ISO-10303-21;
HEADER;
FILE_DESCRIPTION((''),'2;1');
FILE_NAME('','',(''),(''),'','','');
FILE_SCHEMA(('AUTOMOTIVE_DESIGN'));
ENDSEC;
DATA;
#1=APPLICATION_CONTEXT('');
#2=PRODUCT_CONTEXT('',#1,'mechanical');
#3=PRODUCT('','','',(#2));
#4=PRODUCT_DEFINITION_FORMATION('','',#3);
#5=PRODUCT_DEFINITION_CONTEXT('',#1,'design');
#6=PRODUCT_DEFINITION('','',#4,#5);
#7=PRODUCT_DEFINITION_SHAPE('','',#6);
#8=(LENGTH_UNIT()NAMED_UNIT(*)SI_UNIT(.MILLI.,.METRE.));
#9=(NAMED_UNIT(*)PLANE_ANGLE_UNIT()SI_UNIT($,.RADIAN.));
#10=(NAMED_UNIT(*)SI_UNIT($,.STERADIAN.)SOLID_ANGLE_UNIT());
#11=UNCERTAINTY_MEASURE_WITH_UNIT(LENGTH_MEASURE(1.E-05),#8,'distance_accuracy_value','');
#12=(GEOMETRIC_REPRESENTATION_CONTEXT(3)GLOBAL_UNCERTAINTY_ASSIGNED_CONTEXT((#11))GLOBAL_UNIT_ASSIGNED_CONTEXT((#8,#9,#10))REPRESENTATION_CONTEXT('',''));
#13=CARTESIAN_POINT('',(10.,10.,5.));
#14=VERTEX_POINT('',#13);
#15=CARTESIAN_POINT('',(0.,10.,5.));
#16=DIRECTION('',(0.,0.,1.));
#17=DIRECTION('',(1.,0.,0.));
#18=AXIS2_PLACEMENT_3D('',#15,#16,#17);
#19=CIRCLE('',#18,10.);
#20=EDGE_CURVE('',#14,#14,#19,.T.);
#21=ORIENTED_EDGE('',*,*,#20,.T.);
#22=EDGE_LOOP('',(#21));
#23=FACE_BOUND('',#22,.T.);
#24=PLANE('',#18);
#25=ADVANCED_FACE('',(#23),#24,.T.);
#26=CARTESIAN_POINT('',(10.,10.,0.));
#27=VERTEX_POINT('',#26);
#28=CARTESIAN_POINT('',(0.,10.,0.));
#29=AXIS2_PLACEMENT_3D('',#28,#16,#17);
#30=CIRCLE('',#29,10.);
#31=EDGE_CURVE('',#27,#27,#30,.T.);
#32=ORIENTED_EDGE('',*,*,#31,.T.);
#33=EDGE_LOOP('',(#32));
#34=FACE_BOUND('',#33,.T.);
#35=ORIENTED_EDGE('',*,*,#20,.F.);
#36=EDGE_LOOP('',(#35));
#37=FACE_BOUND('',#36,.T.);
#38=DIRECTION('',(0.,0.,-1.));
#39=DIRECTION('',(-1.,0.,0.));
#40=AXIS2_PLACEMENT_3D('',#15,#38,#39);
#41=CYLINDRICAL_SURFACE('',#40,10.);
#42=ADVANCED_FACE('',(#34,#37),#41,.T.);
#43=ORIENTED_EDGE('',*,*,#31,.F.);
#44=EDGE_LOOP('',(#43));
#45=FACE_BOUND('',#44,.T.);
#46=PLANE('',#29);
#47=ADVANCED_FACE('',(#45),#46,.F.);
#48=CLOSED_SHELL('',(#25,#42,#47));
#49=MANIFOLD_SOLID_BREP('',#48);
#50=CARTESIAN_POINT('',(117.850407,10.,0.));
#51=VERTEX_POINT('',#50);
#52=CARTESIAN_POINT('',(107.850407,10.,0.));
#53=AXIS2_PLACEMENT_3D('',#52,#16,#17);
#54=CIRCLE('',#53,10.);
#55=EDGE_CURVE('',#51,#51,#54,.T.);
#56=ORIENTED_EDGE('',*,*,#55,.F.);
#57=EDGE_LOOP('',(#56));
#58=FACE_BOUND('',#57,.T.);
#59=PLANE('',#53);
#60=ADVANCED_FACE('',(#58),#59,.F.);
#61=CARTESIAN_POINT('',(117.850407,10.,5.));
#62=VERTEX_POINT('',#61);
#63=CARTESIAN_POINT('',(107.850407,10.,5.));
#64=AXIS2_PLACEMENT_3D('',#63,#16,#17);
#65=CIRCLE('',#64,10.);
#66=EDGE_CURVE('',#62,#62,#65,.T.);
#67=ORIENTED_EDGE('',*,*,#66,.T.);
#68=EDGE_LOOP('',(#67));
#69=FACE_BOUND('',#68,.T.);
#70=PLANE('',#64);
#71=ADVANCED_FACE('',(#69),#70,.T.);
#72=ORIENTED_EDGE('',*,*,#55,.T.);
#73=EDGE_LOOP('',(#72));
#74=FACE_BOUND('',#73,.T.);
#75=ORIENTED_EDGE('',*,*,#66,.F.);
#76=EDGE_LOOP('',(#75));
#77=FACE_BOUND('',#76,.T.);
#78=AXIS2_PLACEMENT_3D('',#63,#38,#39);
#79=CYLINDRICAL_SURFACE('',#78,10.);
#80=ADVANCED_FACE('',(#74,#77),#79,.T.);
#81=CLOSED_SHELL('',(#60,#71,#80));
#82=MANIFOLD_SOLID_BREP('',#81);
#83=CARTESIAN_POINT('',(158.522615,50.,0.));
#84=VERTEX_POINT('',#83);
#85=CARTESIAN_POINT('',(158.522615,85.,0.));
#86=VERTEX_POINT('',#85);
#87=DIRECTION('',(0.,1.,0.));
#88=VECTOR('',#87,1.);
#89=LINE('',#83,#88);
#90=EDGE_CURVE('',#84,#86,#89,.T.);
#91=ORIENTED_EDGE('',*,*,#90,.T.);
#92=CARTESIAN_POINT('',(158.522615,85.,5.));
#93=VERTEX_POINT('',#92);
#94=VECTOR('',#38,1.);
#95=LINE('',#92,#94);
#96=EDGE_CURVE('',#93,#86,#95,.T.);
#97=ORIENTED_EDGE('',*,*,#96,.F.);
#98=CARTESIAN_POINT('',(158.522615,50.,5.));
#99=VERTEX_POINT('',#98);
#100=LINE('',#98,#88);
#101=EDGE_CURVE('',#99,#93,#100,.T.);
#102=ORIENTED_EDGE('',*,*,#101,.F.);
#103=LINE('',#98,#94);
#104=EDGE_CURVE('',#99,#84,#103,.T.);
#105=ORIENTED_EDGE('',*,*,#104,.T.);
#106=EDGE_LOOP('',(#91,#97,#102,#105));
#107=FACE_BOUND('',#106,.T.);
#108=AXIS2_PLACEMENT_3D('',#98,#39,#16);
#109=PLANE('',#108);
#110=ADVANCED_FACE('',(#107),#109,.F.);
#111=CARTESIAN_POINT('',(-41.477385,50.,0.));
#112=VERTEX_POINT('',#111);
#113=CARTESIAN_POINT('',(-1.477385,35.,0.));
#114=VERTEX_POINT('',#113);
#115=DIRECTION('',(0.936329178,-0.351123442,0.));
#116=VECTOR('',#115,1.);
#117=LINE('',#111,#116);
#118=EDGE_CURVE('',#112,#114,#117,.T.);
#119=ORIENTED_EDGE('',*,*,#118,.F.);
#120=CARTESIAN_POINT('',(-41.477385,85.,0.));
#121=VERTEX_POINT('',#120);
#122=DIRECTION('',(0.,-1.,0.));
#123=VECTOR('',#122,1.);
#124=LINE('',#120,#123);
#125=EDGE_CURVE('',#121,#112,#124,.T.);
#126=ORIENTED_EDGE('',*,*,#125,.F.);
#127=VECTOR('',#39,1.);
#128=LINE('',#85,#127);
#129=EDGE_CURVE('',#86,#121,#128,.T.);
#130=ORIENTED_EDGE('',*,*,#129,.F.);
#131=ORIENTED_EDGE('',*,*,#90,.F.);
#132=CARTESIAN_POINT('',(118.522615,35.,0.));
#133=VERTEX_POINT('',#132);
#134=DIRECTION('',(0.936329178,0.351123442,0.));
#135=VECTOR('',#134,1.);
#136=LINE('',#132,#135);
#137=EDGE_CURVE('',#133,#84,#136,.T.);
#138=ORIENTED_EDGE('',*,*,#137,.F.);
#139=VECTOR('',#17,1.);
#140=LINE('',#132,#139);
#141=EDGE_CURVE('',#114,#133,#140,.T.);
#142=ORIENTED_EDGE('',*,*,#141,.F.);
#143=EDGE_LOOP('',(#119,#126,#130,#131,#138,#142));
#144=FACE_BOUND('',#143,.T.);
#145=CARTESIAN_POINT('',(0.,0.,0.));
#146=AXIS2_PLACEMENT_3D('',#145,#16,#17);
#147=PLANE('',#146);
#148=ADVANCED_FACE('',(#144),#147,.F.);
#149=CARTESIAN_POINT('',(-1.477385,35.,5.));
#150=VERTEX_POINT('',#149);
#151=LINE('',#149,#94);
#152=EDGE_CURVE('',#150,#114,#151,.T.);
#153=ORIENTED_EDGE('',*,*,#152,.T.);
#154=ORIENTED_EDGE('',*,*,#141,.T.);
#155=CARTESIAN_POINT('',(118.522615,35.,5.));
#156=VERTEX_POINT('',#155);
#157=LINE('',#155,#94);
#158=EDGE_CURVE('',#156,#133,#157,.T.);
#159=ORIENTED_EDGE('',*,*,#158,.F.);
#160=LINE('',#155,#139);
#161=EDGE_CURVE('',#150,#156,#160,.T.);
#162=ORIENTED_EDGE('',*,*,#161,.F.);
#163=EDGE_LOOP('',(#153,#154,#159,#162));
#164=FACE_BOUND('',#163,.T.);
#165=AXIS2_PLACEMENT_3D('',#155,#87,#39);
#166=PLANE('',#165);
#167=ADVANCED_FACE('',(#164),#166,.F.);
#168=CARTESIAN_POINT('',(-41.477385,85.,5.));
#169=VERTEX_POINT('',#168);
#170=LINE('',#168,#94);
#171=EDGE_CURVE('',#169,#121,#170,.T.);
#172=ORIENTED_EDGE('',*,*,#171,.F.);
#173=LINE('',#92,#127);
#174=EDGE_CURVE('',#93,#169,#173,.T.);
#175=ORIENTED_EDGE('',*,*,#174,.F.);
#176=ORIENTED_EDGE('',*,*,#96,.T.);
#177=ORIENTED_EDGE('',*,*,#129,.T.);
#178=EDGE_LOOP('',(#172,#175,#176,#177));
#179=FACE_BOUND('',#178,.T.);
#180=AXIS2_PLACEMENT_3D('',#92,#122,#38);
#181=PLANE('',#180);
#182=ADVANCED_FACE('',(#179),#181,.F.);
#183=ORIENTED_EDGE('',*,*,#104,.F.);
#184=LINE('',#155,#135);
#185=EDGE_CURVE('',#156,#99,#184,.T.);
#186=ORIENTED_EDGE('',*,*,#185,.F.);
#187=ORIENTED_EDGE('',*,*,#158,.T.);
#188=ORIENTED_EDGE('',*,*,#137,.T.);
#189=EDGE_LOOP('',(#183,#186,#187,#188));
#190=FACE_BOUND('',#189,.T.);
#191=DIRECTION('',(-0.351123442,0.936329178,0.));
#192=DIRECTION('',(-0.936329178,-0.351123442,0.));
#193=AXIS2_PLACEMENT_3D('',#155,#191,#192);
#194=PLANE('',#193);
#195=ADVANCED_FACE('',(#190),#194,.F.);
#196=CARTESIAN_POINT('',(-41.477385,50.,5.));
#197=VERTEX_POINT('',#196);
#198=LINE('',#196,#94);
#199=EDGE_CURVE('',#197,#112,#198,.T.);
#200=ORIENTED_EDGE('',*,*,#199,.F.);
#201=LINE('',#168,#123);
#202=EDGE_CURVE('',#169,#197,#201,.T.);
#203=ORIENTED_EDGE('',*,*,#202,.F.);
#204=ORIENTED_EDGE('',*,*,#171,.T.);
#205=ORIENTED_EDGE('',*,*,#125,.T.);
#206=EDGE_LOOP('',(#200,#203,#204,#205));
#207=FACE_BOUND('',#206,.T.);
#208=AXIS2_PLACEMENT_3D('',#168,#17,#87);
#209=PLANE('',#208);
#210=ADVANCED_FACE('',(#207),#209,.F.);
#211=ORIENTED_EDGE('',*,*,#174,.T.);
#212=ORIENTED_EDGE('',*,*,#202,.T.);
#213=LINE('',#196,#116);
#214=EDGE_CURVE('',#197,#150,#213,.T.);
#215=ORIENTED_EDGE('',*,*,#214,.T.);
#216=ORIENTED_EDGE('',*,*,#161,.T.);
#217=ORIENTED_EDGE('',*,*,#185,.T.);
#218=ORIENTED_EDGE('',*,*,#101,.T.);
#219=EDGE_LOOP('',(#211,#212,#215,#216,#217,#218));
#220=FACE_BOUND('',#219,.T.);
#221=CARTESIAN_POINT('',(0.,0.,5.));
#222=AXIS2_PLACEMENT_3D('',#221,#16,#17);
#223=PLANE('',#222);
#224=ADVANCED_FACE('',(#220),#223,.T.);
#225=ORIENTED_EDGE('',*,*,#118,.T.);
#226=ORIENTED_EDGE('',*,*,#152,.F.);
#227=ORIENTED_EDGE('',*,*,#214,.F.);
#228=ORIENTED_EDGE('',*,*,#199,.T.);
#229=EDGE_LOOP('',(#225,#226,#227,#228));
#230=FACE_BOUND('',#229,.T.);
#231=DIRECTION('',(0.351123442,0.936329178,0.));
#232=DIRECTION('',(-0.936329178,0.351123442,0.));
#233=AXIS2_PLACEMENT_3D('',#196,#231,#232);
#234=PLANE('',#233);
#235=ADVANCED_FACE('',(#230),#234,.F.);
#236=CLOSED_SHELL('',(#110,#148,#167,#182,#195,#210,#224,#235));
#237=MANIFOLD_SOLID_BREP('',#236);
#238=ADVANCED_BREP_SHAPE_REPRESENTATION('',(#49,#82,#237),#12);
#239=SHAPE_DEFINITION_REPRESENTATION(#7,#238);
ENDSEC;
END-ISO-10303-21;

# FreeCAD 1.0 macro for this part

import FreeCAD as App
import Part
import Sketcher
Q = App.Units.Quantity


def add_polygon(sketch, points):
    """Adds a closed chain of lines whose ends are joined by coincident constraints."""
    first, n = sketch.GeometryCount, len(points)
    for a, b in zip(points, points[1:] + points[:1]):
        sketch.addGeometry(Part.LineSegment(App.Vector(*a, 0), App.Vector(*b, 0)), False)
    for i in range(n):
        sketch.addConstraint(Sketcher.Constraint("Coincident", first + i, 2, first + (i + 1) % n, 1))

doc = App.newDocument("Part")
params = doc.addObject("Spreadsheet::Sheet", "Params")
for row, (alias, value) in enumerate([
    ("sketch1_diameter", "20 mm"),
    ("pad1_length", "5 mm"),
    ("sketch2_diameter", "20 mm"),
    ("pad2_length", "5 mm"),
    ("sketch3_width", "200 mm"),
    ("sketch3_width2", "120 mm"),
    ("sketch3_height", "35 mm"),
    ("pad3_length", "5 mm"),
], start=1):
    params.set(f"A{row}", alias)
    params.set(f"B{row}", "=" + value)
    params.setAlias(f"B{row}", alias)

body = doc.addObject("PartDesign::Body", "Body")

# Sketch on XY plane
sketch1 = doc.addObject("Sketcher::SketchObject", "Sketch")
body.addObject(sketch1)
sketch1.AttachmentSupport = (doc.XY_Plane, [""])
sketch1.MapMode = "FlatFace"
sketch1.addGeometry(Part.Circle(App.Vector(0, 10, 0), App.Vector(0, 0, 1), 10), False)
sketch1.addConstraint(Sketcher.Constraint("PointOnObject", 0, 3, -2))
sketch1.addConstraint(Sketcher.Constraint("Diameter", 0, Q("20 mm")))
sketch1.addConstraint(Sketcher.Constraint("DistanceY", -1, 1, 0, 3, Q("10 mm")))
sketch1.setExpression("Constraints[1]", "Params.sketch1_diameter")
pad1 = doc.addObject("PartDesign::Pad", "Pad")
body.addObject(pad1)
pad1.Profile = sketch1
pad1.setExpression("Length", "Params.pad1_length")
body2 = doc.addObject("PartDesign::Body", "Body001")

# Sketch on XY plane
sketch2 = doc.addObject("Sketcher::SketchObject", "Sketch001")
body2.addObject(sketch2)
sketch2.AttachmentSupport = (doc.getObject("XY_Plane001"), [""])
sketch2.MapMode = "FlatFace"
sketch2.addGeometry(Part.Circle(App.Vector(108, 10, 0), App.Vector(0, 0, 1), 10), False)
sketch2.addConstraint(Sketcher.Constraint("Diameter", 0, Q("20 mm")))
sketch2.addConstraint(Sketcher.Constraint("DistanceY", -1, 1, 0, 3, Q("10 mm")))
sketch2.addConstraint(Sketcher.Constraint("DistanceX", -1, 1, 0, 3, Q("107.850407 mm")))
sketch2.setExpression("Constraints[0]", "Params.sketch2_diameter")
pad2 = doc.addObject("PartDesign::Pad", "Pad001")
body2.addObject(pad2)
pad2.Profile = sketch2
pad2.setExpression("Length", "Params.pad2_length")
body3 = doc.addObject("PartDesign::Body", "Body002")

# Sketch on XY plane
sketch3 = doc.addObject("Sketcher::SketchObject", "Sketch002")
body3.addObject(sketch3)
sketch3.AttachmentSupport = (doc.getObject("XY_Plane002"), [""])
sketch3.MapMode = "FlatFace"
add_polygon(sketch3, [(159, 85), (-41, 85), (-41, 50), (-1, 35), (119, 35), (159, 50)])  # lines 0-5
sketch3.addConstraint(Sketcher.Constraint("Horizontal", 0))
sketch3.addConstraint(Sketcher.Constraint("Vertical", 1))
sketch3.addConstraint(Sketcher.Constraint("Horizontal", 3))
sketch3.addConstraint(Sketcher.Constraint("Vertical", 5))
sketch3.addConstraint(Sketcher.Constraint("Horizontal", 1, 2, 4, 2))
sketch3.addConstraint(Sketcher.Constraint("Equal", 2, 4))
sketch3.addConstraint(Sketcher.Constraint("DistanceX", 0, 2, 0, 1, Q("200 mm")))
sketch3.addConstraint(Sketcher.Constraint("DistanceX", 3, 1, 3, 2, Q("120 mm")))
sketch3.addConstraint(Sketcher.Constraint("DistanceY", 1, 2, 1, 1, Q("35 mm")))
sketch3.addConstraint(Sketcher.Constraint("DistanceY", -1, 1, 0, 2, Q("85 mm")))
sketch3.addConstraint(Sketcher.Constraint("DistanceY", -1, 1, 2, 2, Q("35 mm")))
sketch3.addConstraint(Sketcher.Constraint("DistanceX", 0, 2, -1, 1, Q("41.477385 mm")))
sketch3.setExpression("Constraints[12]", "Params.sketch3_width")
sketch3.setExpression("Constraints[13]", "Params.sketch3_width2")
sketch3.setExpression("Constraints[14]", "Params.sketch3_height")
pad3 = doc.addObject("PartDesign::Pad", "Pad002")
body3.addObject(pad3)
pad3.Profile = sketch3
pad3.setExpression("Length", "Params.pad3_length")

doc.recompute()
